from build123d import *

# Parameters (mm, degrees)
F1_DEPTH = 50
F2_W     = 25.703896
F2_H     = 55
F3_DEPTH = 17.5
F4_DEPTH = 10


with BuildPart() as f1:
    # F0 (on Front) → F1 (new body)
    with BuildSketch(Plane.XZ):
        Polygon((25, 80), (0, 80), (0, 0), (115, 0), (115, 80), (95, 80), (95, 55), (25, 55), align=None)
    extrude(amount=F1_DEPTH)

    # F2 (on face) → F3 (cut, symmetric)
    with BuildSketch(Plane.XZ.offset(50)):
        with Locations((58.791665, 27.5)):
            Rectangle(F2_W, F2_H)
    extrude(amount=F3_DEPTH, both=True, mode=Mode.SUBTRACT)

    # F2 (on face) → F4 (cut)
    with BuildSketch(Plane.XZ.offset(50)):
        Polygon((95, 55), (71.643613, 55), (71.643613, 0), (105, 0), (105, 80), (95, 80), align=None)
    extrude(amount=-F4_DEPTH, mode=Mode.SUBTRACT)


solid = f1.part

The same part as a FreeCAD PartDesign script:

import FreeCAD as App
import Part
import Sketcher
Q = App.Units.Quantity


def add_polygon(sketch, points):
    """Adds a closed chain of lines whose ends are joined by coincident constraints."""
    first, n = sketch.GeometryCount, len(points)
    for a, b in zip(points, points[1:] + points[:1]):
        sketch.addGeometry(Part.LineSegment(App.Vector(*a, 0), App.Vector(*b, 0)), False)
    for i in range(n):
        sketch.addConstraint(Sketcher.Constraint("Coincident", first + i, 2, first + (i + 1) % n, 1))

doc = App.newDocument("Part")
body = doc.addObject("PartDesign::Body", "Body")

# Sketch on XZ plane
sketch1 = doc.addObject("Sketcher::SketchObject", "Sketch")
body.addObject(sketch1)
sketch1.AttachmentSupport = (doc.XZ_Plane, [""])
sketch1.MapMode = "FlatFace"
add_polygon(sketch1, [(25, 80), (0, 80), (0, 0), (115, 0), (115, 80), (95, 80), (95, 55), (25, 55)])  # lines 0-7
sketch1.addConstraint([
    Sketcher.Constraint("Horizontal", 0),
    Sketcher.Constraint("Vertical", 1),
    Sketcher.Constraint("Horizontal", 2),
    Sketcher.Constraint("Vertical", 3),
    Sketcher.Constraint("Horizontal", 4),
    Sketcher.Constraint("Vertical", 5),
    Sketcher.Constraint("Horizontal", 6),
    Sketcher.Constraint("Vertical", 7),
    Sketcher.Constraint("Coincident", 1, 2, -1, 1),
    Sketcher.Constraint("Horizontal", 0, 2, 3, 2),
    Sketcher.Constraint("Equal", 0, 5),
    Sketcher.Constraint("DistanceX", 0, 2, 0, 1, Q("25 mm")),
    Sketcher.Constraint("DistanceX", 2, 1, 2, 2, Q("115 mm")),
    Sketcher.Constraint("DistanceX", 4, 2, 4, 1, Q("20 mm")),
    Sketcher.Constraint("DistanceY", 1, 2, 1, 1, Q("80 mm")),
])
pad1 = doc.addObject("PartDesign::Pad", "Pad")
body.addObject(pad1)
pad1.Profile = sketch1
pad1.Length = 50

# Sketch on XZ plane
sketch2 = doc.addObject("Sketcher::SketchObject", "Sketch001")
body.addObject(sketch2)
sketch2.AttachmentSupport = (doc.XZ_Plane, [""])
sketch2.MapMode = "FlatFace"
sketch2.AttachmentOffset = App.Placement(App.Vector(0, 0, 50), App.Rotation())
add_polygon(sketch2, [(46, 55), (46, 0), (72, 0), (72, 55)])  # lines 0-3
sketch2.addConstraint([
    Sketcher.Constraint("Vertical", 0),
    Sketcher.Constraint("Horizontal", 1),
    Sketcher.Constraint("Vertical", 2),
    Sketcher.Constraint("Horizontal", 3),
    Sketcher.Constraint("PointOnObject", 0, 2, -1),
    Sketcher.Constraint("DistanceY", 0, 2, 0, 1, Q("55 mm")),
    Sketcher.Constraint("DistanceX", 1, 1, 1, 2, Q("25.703896 mm")),
    Sketcher.Constraint("DistanceX", -1, 1, 0, 2, Q("45.939717 mm")),
])
pocket1 = doc.addObject("PartDesign::Pocket", "Pocket")
body.addObject(pocket1)
pocket1.Profile = sketch2
pocket1.Length = 35
pocket1.Midplane = True

# Sketch on XZ plane
sketch3 = doc.addObject("Sketcher::SketchObject", "Sketch002")
body.addObject(sketch3)
sketch3.AttachmentSupport = (doc.XZ_Plane, [""])
sketch3.MapMode = "FlatFace"
sketch3.AttachmentOffset = App.Placement(App.Vector(0, 0, 50), App.Rotation())
add_polygon(sketch3, [(95, 55), (72, 55), (72, 0), (105, 0), (105, 80), (95, 80)])  # lines 0-5
sketch3.addConstraint([
    Sketcher.Constraint("Horizontal", 0),
    Sketcher.Constraint("Vertical", 1),
    Sketcher.Constraint("Horizontal", 2),
    Sketcher.Constraint("Vertical", 3),
    Sketcher.Constraint("Horizontal", 4),
    Sketcher.Constraint("Vertical", 5),
    Sketcher.Constraint("PointOnObject", 1, 2, -1),
    Sketcher.Constraint("DistanceX", 4, 2, 4, 1, Q("10 mm")),
    Sketcher.Constraint("DistanceY", 1, 2, 1, 1, Q("55 mm")),
    Sketcher.Constraint("DistanceY", 3, 1, 3, 2, Q("80 mm")),
    Sketcher.Constraint("DistanceX", -1, 1, 2, 2, Q("105 mm")),
    Sketcher.Constraint("DistanceX", 0, 2, 0, 1, Q("23.356387 mm")),
])
pocket2 = doc.addObject("PartDesign::Pocket", "Pocket001")
body.addObject(pocket2)
pocket2.Profile = sketch3
pocket2.Length = 10

doc.recompute()
